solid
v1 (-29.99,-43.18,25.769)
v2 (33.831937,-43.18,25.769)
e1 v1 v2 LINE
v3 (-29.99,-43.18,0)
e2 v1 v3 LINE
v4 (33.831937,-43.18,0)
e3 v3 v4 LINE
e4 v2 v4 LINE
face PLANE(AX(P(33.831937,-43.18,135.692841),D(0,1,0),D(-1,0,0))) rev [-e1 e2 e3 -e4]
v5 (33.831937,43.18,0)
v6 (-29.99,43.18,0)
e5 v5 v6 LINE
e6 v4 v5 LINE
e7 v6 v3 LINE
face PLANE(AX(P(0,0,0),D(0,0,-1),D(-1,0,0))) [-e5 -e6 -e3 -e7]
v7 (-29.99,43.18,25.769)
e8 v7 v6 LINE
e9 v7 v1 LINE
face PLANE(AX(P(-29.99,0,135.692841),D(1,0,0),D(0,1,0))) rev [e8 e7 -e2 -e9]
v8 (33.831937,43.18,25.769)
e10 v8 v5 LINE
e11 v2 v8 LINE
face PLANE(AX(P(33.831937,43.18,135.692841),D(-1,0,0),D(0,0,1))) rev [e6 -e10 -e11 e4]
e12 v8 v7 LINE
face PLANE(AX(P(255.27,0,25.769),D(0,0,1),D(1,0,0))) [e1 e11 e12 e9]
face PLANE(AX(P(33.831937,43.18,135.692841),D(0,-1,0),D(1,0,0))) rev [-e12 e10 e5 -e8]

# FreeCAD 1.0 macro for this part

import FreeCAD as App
import Part
import Sketcher
from FreeCAD import Vector
Q = App.Units.Quantity


def add_polygon(sketch, points):
    """Adds a closed chain of lines whose ends are joined by coincident constraints."""
    first, n = sketch.GeometryCount, len(points)
    for a, b in zip(points, points[1:] + points[:1]):
        sketch.addGeometry(Part.LineSegment(App.Vector(*a, 0), App.Vector(*b, 0)), False)
    for i in range(n):
        sketch.addConstraint(Sketcher.Constraint("Coincident", first + i, 2, first + (i + 1) % n, 1))

doc = App.newDocument("Part")
body = doc.addObject("PartDesign::Body", "Body")

# Sketch on XY plane
sketch1 = body.newObject("Sketcher::SketchObject", "Sketch")
sketch1.AttachmentSupport = (doc.getObject("XY_Plane"), [""])
sketch1.MapMode = "FlatFace"
add_polygon(sketch1, [(34, -43), (34, 43), (-30, 43), (-30, -43)])  # lines 0-3
sketch1.addConstraint([
    Sketcher.Constraint("Vertical", 0),
    Sketcher.Constraint("Horizontal", 1),
    Sketcher.Constraint("Vertical", 2),
    Sketcher.Constraint("Horizontal", 3),
    Sketcher.Constraint("DistanceY", 0, 1, 0, 2, Q("3.4 in")),
    Sketcher.Constraint("DistanceY", -1, 1, 0, 2, Q("1.7 in")),
    Sketcher.Constraint("DistanceX", 1, 2, -1, 1, 29.99),
    Sketcher.Constraint("DistanceX", 1, 2, 1, 1, 63.821937),
])
pad1 = body.newObject("PartDesign::Pad", "Pad")
pad1.Profile = sketch1
pad1.Length = 25.769

doc.recompute()
